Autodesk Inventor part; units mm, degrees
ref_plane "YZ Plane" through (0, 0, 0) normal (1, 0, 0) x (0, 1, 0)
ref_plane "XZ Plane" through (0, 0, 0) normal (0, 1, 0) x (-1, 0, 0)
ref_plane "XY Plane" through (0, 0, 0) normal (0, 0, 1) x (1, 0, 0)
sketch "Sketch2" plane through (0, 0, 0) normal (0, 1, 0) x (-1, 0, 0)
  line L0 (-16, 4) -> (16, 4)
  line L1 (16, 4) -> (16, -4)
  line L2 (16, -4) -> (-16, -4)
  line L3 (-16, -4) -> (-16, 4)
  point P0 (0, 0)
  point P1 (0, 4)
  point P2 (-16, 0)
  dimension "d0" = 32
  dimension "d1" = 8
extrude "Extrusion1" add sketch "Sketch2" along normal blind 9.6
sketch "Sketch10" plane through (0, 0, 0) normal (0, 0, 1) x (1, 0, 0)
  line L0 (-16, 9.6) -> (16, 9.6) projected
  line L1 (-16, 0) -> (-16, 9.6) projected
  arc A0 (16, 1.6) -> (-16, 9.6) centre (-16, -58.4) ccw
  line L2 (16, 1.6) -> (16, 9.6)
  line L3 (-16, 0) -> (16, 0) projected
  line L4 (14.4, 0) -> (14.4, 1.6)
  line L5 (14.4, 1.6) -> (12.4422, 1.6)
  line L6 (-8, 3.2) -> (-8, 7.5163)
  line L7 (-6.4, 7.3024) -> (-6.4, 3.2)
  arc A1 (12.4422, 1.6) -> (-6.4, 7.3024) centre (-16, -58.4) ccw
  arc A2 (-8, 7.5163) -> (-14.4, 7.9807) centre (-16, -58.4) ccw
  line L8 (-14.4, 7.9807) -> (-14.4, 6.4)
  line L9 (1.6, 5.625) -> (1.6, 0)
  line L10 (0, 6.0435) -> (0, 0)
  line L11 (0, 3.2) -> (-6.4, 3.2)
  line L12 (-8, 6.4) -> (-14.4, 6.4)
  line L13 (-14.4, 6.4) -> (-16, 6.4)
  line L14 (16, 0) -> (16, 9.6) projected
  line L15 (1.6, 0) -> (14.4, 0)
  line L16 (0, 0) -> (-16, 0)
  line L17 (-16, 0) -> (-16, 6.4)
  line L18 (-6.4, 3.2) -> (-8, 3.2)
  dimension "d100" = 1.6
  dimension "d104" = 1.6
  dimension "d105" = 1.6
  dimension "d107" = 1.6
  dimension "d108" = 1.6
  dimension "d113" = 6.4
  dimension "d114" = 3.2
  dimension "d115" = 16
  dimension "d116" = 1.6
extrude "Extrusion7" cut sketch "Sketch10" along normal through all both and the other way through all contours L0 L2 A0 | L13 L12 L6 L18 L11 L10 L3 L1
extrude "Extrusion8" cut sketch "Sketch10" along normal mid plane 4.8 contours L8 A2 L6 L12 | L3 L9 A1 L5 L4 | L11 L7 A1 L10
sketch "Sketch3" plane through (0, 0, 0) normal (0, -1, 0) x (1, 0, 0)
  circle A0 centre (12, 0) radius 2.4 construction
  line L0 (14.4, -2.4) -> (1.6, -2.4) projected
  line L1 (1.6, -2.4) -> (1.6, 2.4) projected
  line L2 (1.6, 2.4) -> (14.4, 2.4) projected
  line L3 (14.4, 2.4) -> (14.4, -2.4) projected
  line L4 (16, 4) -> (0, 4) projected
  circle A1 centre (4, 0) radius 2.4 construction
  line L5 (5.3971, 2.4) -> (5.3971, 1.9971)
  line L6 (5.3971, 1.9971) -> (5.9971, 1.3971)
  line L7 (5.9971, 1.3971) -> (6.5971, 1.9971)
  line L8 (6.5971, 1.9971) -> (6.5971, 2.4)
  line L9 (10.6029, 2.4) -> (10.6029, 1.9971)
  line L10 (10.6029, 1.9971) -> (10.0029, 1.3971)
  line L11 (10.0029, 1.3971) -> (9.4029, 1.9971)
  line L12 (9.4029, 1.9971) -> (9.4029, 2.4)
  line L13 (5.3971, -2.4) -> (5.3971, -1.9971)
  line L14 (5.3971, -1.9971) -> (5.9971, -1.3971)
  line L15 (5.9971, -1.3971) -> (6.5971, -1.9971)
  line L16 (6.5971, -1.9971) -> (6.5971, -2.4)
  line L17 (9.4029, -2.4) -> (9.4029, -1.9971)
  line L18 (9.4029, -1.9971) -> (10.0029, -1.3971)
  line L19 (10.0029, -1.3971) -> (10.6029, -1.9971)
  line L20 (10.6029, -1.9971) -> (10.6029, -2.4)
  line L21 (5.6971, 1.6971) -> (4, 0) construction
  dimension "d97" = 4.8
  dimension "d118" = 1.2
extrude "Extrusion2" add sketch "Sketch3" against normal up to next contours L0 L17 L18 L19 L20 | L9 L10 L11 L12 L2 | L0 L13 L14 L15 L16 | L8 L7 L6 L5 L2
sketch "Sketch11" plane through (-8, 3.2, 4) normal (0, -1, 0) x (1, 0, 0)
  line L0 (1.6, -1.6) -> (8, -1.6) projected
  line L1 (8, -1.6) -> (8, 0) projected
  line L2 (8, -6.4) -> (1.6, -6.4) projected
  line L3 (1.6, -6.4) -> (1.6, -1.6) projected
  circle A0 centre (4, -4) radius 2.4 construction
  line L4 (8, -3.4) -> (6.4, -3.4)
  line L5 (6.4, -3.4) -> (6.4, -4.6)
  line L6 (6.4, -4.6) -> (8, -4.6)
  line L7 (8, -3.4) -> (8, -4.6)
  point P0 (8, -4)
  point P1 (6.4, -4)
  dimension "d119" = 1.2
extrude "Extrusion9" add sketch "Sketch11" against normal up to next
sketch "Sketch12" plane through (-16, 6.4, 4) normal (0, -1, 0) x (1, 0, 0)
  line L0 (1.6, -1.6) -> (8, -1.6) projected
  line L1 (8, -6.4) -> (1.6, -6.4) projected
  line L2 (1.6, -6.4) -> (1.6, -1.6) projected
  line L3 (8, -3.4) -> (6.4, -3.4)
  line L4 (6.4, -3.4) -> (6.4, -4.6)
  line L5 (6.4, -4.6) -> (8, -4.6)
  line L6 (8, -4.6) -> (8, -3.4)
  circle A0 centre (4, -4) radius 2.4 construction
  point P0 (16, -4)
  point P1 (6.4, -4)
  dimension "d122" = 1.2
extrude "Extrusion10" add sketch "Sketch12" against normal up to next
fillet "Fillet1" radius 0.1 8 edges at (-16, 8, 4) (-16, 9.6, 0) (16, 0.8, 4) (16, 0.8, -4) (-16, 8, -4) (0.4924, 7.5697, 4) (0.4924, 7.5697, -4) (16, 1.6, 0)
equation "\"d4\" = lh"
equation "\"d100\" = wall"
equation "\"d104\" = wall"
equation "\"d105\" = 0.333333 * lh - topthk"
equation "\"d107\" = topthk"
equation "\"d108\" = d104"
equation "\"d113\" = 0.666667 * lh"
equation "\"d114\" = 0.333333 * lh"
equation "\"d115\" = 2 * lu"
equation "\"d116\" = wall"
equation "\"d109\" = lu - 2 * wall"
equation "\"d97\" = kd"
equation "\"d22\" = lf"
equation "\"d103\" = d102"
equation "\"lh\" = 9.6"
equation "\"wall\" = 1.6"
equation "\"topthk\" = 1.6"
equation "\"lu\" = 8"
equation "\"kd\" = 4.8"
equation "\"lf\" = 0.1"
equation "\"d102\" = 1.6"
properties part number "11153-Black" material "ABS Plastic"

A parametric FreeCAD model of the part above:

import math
import FreeCAD as App
import Part
import Sketcher


def edges_at(feature, points):
    """Names of the edges that pass closest to the given points."""
    edges = feature.Shape.Edges
    near = lambda p: min(range(len(edges)), key=lambda i: edges[i].distToShape(Part.Vertex(*p))[0])
    return sorted({f"Edge{near(p) + 1}" for p in points})

doc = App.newDocument("Part")
body = doc.addObject("PartDesign::Body", "Body")

sketch1 = body.newObject("Sketcher::SketchObject", "Sketch")
sketch1.AttachmentSupport = (doc.getObject("XZ_Plane"), [""])
sketch1.MapMode = "FlatFace"
sketch1.addGeometry(Part.LineSegment(App.Vector(-16, 4, 0), App.Vector(16, 4, 0)), False)
sketch1.addGeometry(Part.LineSegment(App.Vector(16, 4, 0), App.Vector(16, -4, 0)), False)
sketch1.addGeometry(Part.LineSegment(App.Vector(16, -4, 0), App.Vector(-16, -4, 0)), False)
sketch1.addGeometry(Part.LineSegment(App.Vector(-16, -4, 0), App.Vector(-16, 4, 0)), False)
sketch1.addConstraint(Sketcher.Constraint("Coincident", 0, 2, 1, 1))
sketch1.addConstraint(Sketcher.Constraint("Coincident", 1, 2, 2, 1))
sketch1.addConstraint(Sketcher.Constraint("Coincident", 2, 2, 3, 1))
sketch1.addConstraint(Sketcher.Constraint("Coincident", 3, 2, 0, 1))
sketch1.addConstraint(Sketcher.Constraint("Horizontal", 0))
sketch1.addConstraint(Sketcher.Constraint("Vertical", 1))
sketch1.addConstraint(Sketcher.Constraint("Horizontal", 2))
sketch1.addConstraint(Sketcher.Constraint("Vertical", 3))
sketch1.addConstraint(Sketcher.Constraint("Symmetric", 0, 2, 2, 2, -1, 1))
sketch1.addConstraint(Sketcher.Constraint("DistanceX", 0, 1, 0, 2, 32.0))
sketch1.addConstraint(Sketcher.Constraint("DistanceY", 1, 2, 1, 1, 8.0))
pad1 = body.newObject("PartDesign::Pad", "Pad")
pad1.Profile = sketch1
pad1.Length = 9.6
pad1.Reversed = True

sketch2 = body.newObject("Sketcher::SketchObject", "Sketch001")
sketch2.AttachmentSupport = (doc.getObject("XY_Plane"), [""])
sketch2.MapMode = "FlatFace"
sketch2.addGeometry(Part.LineSegment(App.Vector(16, 9.6, 0), App.Vector(-16, 9.6, 0)), False)
sketch2.addGeometry(Part.ArcOfCircle(Part.Circle(App.Vector(-16, -58.4, 0), App.Vector(0, 0, 1), 68), math.radians(61.927513), math.radians(90)), False)
sketch2.addGeometry(Part.LineSegment(App.Vector(16, 1.6, 0), App.Vector(16, 9.6, 0)), False)
sketch2.addGeometry(Part.LineSegment(App.Vector(-8, 6.4, 0), App.Vector(-16, 6.4, 0)), False)
sketch2.addGeometry(Part.LineSegment(App.Vector(-16, 6.4, 0), App.Vector(-16, 0, 0)), False)
sketch2.addGeometry(Part.LineSegment(App.Vector(-16, 0, 0), App.Vector(0, 0, 0)), False)
sketch2.addGeometry(Part.LineSegment(App.Vector(0, 0, 0), App.Vector(0, 3.2, 0)), False)
sketch2.addGeometry(Part.LineSegment(App.Vector(0, 3.2, 0), App.Vector(-8, 3.2, 0)), False)
sketch2.addGeometry(Part.LineSegment(App.Vector(-8, 3.2, 0), App.Vector(-8, 6.4, 0)), False)
sketch2.addConstraint(Sketcher.Constraint("Tangent", 0, 2, 1, 2))
sketch2.addConstraint(Sketcher.Constraint("Coincident", 1, 1, 2, 1))
sketch2.addConstraint(Sketcher.Constraint("Coincident", 2, 2, 0, 1))
sketch2.addConstraint(Sketcher.Constraint("Coincident", 3, 2, 4, 1))
sketch2.addConstraint(Sketcher.Constraint("Coincident", 4, 2, 5, 1))
sketch2.addConstraint(Sketcher.Constraint("Coincident", 5, 2, 6, 1))
sketch2.addConstraint(Sketcher.Constraint("Coincident", 6, 2, 7, 1))
sketch2.addConstraint(Sketcher.Constraint("Coincident", 7, 2, 8, 1))
sketch2.addConstraint(Sketcher.Constraint("Coincident", 8, 2, 3, 1))
sketch2.addConstraint(Sketcher.Constraint("Horizontal", 0))
sketch2.addConstraint(Sketcher.Constraint("Vertical", 2))
sketch2.addConstraint(Sketcher.Constraint("Horizontal", 3))
sketch2.addConstraint(Sketcher.Constraint("Vertical", 4))
sketch2.addConstraint(Sketcher.Constraint("Horizontal", 5))
sketch2.addConstraint(Sketcher.Constraint("Vertical", 6))
sketch2.addConstraint(Sketcher.Constraint("Horizontal", 7))
sketch2.addConstraint(Sketcher.Constraint("Vertical", 8))
sketch2.addConstraint(Sketcher.Constraint("Coincident", 5, 2, -1, 1))
sketch2.addConstraint(Sketcher.Constraint("Vertical", 0, 2, 3, 2))
sketch2.addConstraint(Sketcher.Constraint("Equal", 3, 7))
sketch2.addConstraint(Sketcher.Constraint("Equal", 7, 2))
sketch2.addConstraint(Sketcher.Constraint("Equal", 6, 8))
sketch2.addConstraint(Sketcher.Constraint("DistanceX", 5, 1, 5, 2, 16.0))
sketch2.addConstraint(Sketcher.Constraint("DistanceY", 4, 2, 4, 1, 6.4))
sketch2.addConstraint(Sketcher.Constraint("DistanceX", -1, 1, 1, 1, 16.0))
sketch2.addConstraint(Sketcher.Constraint("DistanceY", -1, 1, 1, 1, 1.6))
pocket1 = body.newObject("PartDesign::Pocket", "Pocket")
pocket1.Profile = sketch2
pocket1.Type = "ThroughAll"
pocket1.Midplane = True

sketch3 = body.newObject("Sketcher::SketchObject", "Sketch002")
sketch3.AttachmentSupport = (doc.getObject("XY_Plane"), [""])
sketch3.MapMode = "FlatFace"
sketch3.addGeometry(Part.LineSegment(App.Vector(-14.4, 7.9807, 0), App.Vector(-14.4, 6.4, 0)), False)
sketch3.addGeometry(Part.LineSegment(App.Vector(-14.4, 6.4, 0), App.Vector(-8, 6.4, 0)), False)
sketch3.addGeometry(Part.LineSegment(App.Vector(-8, 6.4, 0), App.Vector(-8, 7.5163, 0)), False)
sketch3.addGeometry(Part.ArcOfCircle(Part.Circle(App.Vector(-15.999604, -58.395914, 0), App.Vector(0, 0, 1), 66.395886), math.radians(83.079996), math.radians(88.619501)), False)
sketch3.addGeometry(Part.LineSegment(App.Vector(1.6, 0, 0), App.Vector(14.4, 0, 0)), False)
sketch3.addGeometry(Part.LineSegment(App.Vector(14.4, 0, 0), App.Vector(14.4, 1.6, 0)), False)
sketch3.addGeometry(Part.LineSegment(App.Vector(14.4, 1.6, 0), App.Vector(12.4422, 1.6, 0)), False)
sketch3.addGeometry(Part.ArcOfCircle(Part.Circle(App.Vector(-16.000815, -58.402112, 0), App.Vector(0, 0, 1), 66.402248), math.radians(64.637478), math.radians(74.629274)), False)
sketch3.addGeometry(Part.LineSegment(App.Vector(1.6, 5.625, 0), App.Vector(1.6, 0, 0)), False)
sketch3.addGeometry(Part.LineSegment(App.Vector(-6.4, 3.2, 0), App.Vector(0, 3.2, 0)), False)
sketch3.addGeometry(Part.LineSegment(App.Vector(0, 3.2, 0), App.Vector(0, 6.0435, 0)), False)
sketch3.addGeometry(Part.ArcOfCircle(Part.Circle(App.Vector(-16.000815, -58.402112, 0), App.Vector(0, 0, 1), 66.402248), math.radians(76.056329), math.radians(81.686712)), False)
sketch3.addGeometry(Part.LineSegment(App.Vector(-6.4, 7.3024, 0), App.Vector(-6.4, 3.2, 0)), False)
sketch3.addConstraint(Sketcher.Constraint("Coincident", 0, 2, 1, 1))
sketch3.addConstraint(Sketcher.Constraint("Coincident", 1, 2, 2, 1))
sketch3.addConstraint(Sketcher.Constraint("Coincident", 2, 2, 3, 1))
sketch3.addConstraint(Sketcher.Constraint("Coincident", 3, 2, 0, 1))
sketch3.addConstraint(Sketcher.Constraint("Coincident", 4, 2, 5, 1))
sketch3.addConstraint(Sketcher.Constraint("Coincident", 5, 2, 6, 1))
sketch3.addConstraint(Sketcher.Constraint("Coincident", 6, 2, 7, 1))
sketch3.addConstraint(Sketcher.Constraint("Coincident", 7, 2, 8, 1))
sketch3.addConstraint(Sketcher.Constraint("Coincident", 8, 2, 4, 1))
sketch3.addConstraint(Sketcher.Constraint("Coincident", 9, 2, 10, 1))
sketch3.addConstraint(Sketcher.Constraint("Coincident", 10, 2, 11, 1))
sketch3.addConstraint(Sketcher.Constraint("Coincident", 11, 2, 12, 1))
sketch3.addConstraint(Sketcher.Constraint("Coincident", 12, 2, 9, 1))
sketch3.addConstraint(Sketcher.Constraint("Vertical", 0))
sketch3.addConstraint(Sketcher.Constraint("Horizontal", 1))
sketch3.addConstraint(Sketcher.Constraint("Vertical", 2))
sketch3.addConstraint(Sketcher.Constraint("Horizontal", 4))
sketch3.addConstraint(Sketcher.Constraint("Vertical", 5))
sketch3.addConstraint(Sketcher.Constraint("Horizontal", 6))
sketch3.addConstraint(Sketcher.Constraint("Vertical", 8))
sketch3.addConstraint(Sketcher.Constraint("Horizontal", 9))
sketch3.addConstraint(Sketcher.Constraint("Vertical", 10))
sketch3.addConstraint(Sketcher.Constraint("Vertical", 12))
sketch3.addConstraint(Sketcher.Constraint("Coincident", 11, 3, 7, 3))
sketch3.addConstraint(Sketcher.Constraint("Equal", 7, 11))
sketch3.addConstraint(Sketcher.Constraint("PointOnObject", 4, 2, -1))
sketch3.addConstraint(Sketcher.Constraint("PointOnObject", 9, 2, -2))
sketch3.addConstraint(Sketcher.Constraint("Equal", 1, 9))
sketch3.addConstraint(Sketcher.Constraint("DistanceX", 1, 1, 1, 2, 6.4))
sketch3.addConstraint(Sketcher.Constraint("DistanceY", 5, 1, 5, 2, 1.6))
sketch3.addConstraint(Sketcher.Constraint("DistanceY", -1, 1, 0, 2, 6.4))
sketch3.addConstraint(Sketcher.Constraint("DistanceX", -1, 1, 7, 2, 1.6))
sketch3.addConstraint(Sketcher.Constraint("DistanceY", -1, 1, 9, 2, 3.2))
sketch3.addConstraint(Sketcher.Constraint("DistanceX", 2, 2, 11, 2, 1.6))
sketch3.addConstraint(Sketcher.Constraint("DistanceX", 4, 1, 4, 2, 12.8))
sketch3.addConstraint(Sketcher.Constraint("Radius", 3, 66.396))
sketch3.addConstraint(Sketcher.Constraint("DistanceX", 3, 3, -1, 1, 15.9996))
sketch3.addConstraint(Sketcher.Constraint("Radius", 7, 66.4022))
sketch3.addConstraint(Sketcher.Constraint("DistanceY", 8, 2, 8, 1, 5.625))
sketch3.addConstraint(Sketcher.Constraint("DistanceX", 6, 2, 6, 1, 1.9578))
sketch3.addConstraint(Sketcher.Constraint("DistanceY", 0, 2, 0, 1, 1.5807))
pocket2 = body.newObject("PartDesign::Pocket", "Pocket001")
pocket2.Profile = sketch3
pocket2.Length = 4.8
pocket2.Midplane = True

sketch4 = body.newObject("Sketcher::SketchObject", "Sketch003")
sketch4.AttachmentSupport = (doc.getObject("XZ_Plane"), [""])
sketch4.MapMode = "FlatFace"
sketch4.addGeometry(Part.LineSegment(App.Vector(9.4029, -2.4, 0), App.Vector(10.6029, -2.4, 0)), False)
sketch4.addGeometry(Part.LineSegment(App.Vector(10.6029, -2.4, 0), App.Vector(10.6029, -1.9971, 0)), False)
sketch4.addGeometry(Part.LineSegment(App.Vector(10.6029, -1.9971, 0), App.Vector(10.0029, -1.3971, 0)), False)
sketch4.addGeometry(Part.LineSegment(App.Vector(10.0029, -1.3971, 0), App.Vector(9.4029, -1.9971, 0)), False)
sketch4.addGeometry(Part.LineSegment(App.Vector(9.4029, -1.9971, 0), App.Vector(9.4029, -2.4, 0)), False)
sketch4.addGeometry(Part.LineSegment(App.Vector(10.6029, 1.9971, 0), App.Vector(10.6029, 2.4, 0)), False)
sketch4.addGeometry(Part.LineSegment(App.Vector(10.6029, 2.4, 0), App.Vector(9.4029, 2.4, 0)), False)
sketch4.addGeometry(Part.LineSegment(App.Vector(9.4029, 2.4, 0), App.Vector(9.4029, 1.9971, 0)), False)
sketch4.addGeometry(Part.LineSegment(App.Vector(9.4029, 1.9971, 0), App.Vector(10.0029, 1.3971, 0)), False)
sketch4.addGeometry(Part.LineSegment(App.Vector(10.0029, 1.3971, 0), App.Vector(10.6029, 1.9971, 0)), False)
sketch4.addGeometry(Part.LineSegment(App.Vector(5.3971, -2.4, 0), App.Vector(6.5971, -2.4, 0)), False)
sketch4.addGeometry(Part.LineSegment(App.Vector(6.5971, -2.4, 0), App.Vector(6.5971, -1.9971, 0)), False)
sketch4.addGeometry(Part.LineSegment(App.Vector(6.5971, -1.9971, 0), App.Vector(5.9971, -1.3971, 0)), False)
sketch4.addGeometry(Part.LineSegment(App.Vector(5.9971, -1.3971, 0), App.Vector(5.3971, -1.9971, 0)), False)
sketch4.addGeometry(Part.LineSegment(App.Vector(5.3971, -1.9971, 0), App.Vector(5.3971, -2.4, 0)), False)
sketch4.addGeometry(Part.LineSegment(App.Vector(6.5971, 1.9971, 0), App.Vector(6.5971, 2.4, 0)), False)
sketch4.addGeometry(Part.LineSegment(App.Vector(6.5971, 2.4, 0), App.Vector(5.3971, 2.4, 0)), False)
sketch4.addGeometry(Part.LineSegment(App.Vector(5.3971, 2.4, 0), App.Vector(5.3971, 1.9971, 0)), False)
sketch4.addGeometry(Part.LineSegment(App.Vector(5.3971, 1.9971, 0), App.Vector(5.9971, 1.3971, 0)), False)
sketch4.addGeometry(Part.LineSegment(App.Vector(5.9971, 1.3971, 0), App.Vector(6.5971, 1.9971, 0)), False)
sketch4.addConstraint(Sketcher.Constraint("Coincident", 0, 2, 1, 1))
sketch4.addConstraint(Sketcher.Constraint("Coincident", 1, 2, 2, 1))
sketch4.addConstraint(Sketcher.Constraint("Coincident", 2, 2, 3, 1))
sketch4.addConstraint(Sketcher.Constraint("Coincident", 3, 2, 4, 1))
sketch4.addConstraint(Sketcher.Constraint("Coincident", 4, 2, 0, 1))
sketch4.addConstraint(Sketcher.Constraint("Coincident", 5, 2, 6, 1))
sketch4.addConstraint(Sketcher.Constraint("Coincident", 6, 2, 7, 1))
sketch4.addConstraint(Sketcher.Constraint("Coincident", 7, 2, 8, 1))
sketch4.addConstraint(Sketcher.Constraint("Coincident", 8, 2, 9, 1))
sketch4.addConstraint(Sketcher.Constraint("Coincident", 9, 2, 5, 1))
sketch4.addConstraint(Sketcher.Constraint("Coincident", 10, 2, 11, 1))
sketch4.addConstraint(Sketcher.Constraint("Coincident", 11, 2, 12, 1))
sketch4.addConstraint(Sketcher.Constraint("Coincident", 12, 2, 13, 1))
sketch4.addConstraint(Sketcher.Constraint("Coincident", 13, 2, 14, 1))
sketch4.addConstraint(Sketcher.Constraint("Coincident", 14, 2, 10, 1))
sketch4.addConstraint(Sketcher.Constraint("Coincident", 15, 2, 16, 1))
sketch4.addConstraint(Sketcher.Constraint("Coincident", 16, 2, 17, 1))
sketch4.addConstraint(Sketcher.Constraint("Coincident", 17, 2, 18, 1))
sketch4.addConstraint(Sketcher.Constraint("Coincident", 18, 2, 19, 1))
sketch4.addConstraint(Sketcher.Constraint("Coincident", 19, 2, 15, 1))
sketch4.addConstraint(Sketcher.Constraint("Horizontal", 0))
sketch4.addConstraint(Sketcher.Constraint("Vertical", 1))
sketch4.addConstraint(Sketcher.Constraint("Vertical", 4))
sketch4.addConstraint(Sketcher.Constraint("Vertical", 5))
sketch4.addConstraint(Sketcher.Constraint("Horizontal", 6))
sketch4.addConstraint(Sketcher.Constraint("Vertical", 7))
sketch4.addConstraint(Sketcher.Constraint("Horizontal", 10))
sketch4.addConstraint(Sketcher.Constraint("Vertical", 11))
sketch4.addConstraint(Sketcher.Constraint("Vertical", 14))
sketch4.addConstraint(Sketcher.Constraint("Vertical", 15))
sketch4.addConstraint(Sketcher.Constraint("Horizontal", 16))
sketch4.addConstraint(Sketcher.Constraint("Vertical", 17))
sketch4.addConstraint(Sketcher.Constraint("Symmetric", 0, 2, 5, 2, -1))
sketch4.addConstraint(Sketcher.Constraint("Symmetric", 3, 2, 7, 2, -1))
sketch4.addConstraint(Sketcher.Constraint("Symmetric", 2, 2, 8, 2, -1))
sketch4.addConstraint(Sketcher.Constraint("Symmetric", 10, 2, 15, 2, -1))
sketch4.addConstraint(Sketcher.Constraint("Symmetric", 13, 2, 17, 2, -1))
sketch4.addConstraint(Sketcher.Constraint("Symmetric", 12, 2, 18, 2, -1))
sketch4.addConstraint(Sketcher.Constraint("Perpendicular", 2, 3))
sketch4.addConstraint(Sketcher.Constraint("Perpendicular", 3, 8))
sketch4.addConstraint(Sketcher.Constraint("Perpendicular", 8, 9))
sketch4.addConstraint(Sketcher.Constraint("Perpendicular", 9, 12))
sketch4.addConstraint(Sketcher.Constraint("Perpendicular", 12, 13))
sketch4.addConstraint(Sketcher.Constraint("Perpendicular", 18, 19))
sketch4.addConstraint(Sketcher.Constraint("Horizontal", 1, 2, 3, 2))
sketch4.addConstraint(Sketcher.Constraint("Horizontal", 4, 2, 10, 2))
sketch4.addConstraint(Sketcher.Constraint("Horizontal", 3, 2, 11, 2))
sketch4.addConstraint(Sketcher.Constraint("Horizontal", 2, 2, 12, 2))
sketch4.addConstraint(Sketcher.Constraint("Horizontal", 11, 2, 13, 2))
sketch4.addConstraint(Sketcher.Constraint("DistanceX", 0, 1, 0, 2, 1.2))
sketch4.addConstraint(Sketcher.Constraint("DistanceY", 0, 2, 5, 2, 4.8))
sketch4.addConstraint(Sketcher.Constraint("DistanceY", 1, 1, 1, 2, 0.403))
sketch4.addConstraint(Sketcher.Constraint("DistanceX", -1, 1, 0, 2, 10.603))
sketch4.addConstraint(Sketcher.Constraint("DistanceX", -1, 1, 10, 2, 6.597))
pad2 = body.newObject("PartDesign::Pad", "Pad001")
pad2.Profile = sketch4
pad2.Type = "UpToFirst"
pad2.Reversed = True

sketch5 = body.newObject("Sketcher::SketchObject", "Sketch004")
sketch5.AttachmentSupport = (doc.getObject("XZ_Plane"), [""])
sketch5.MapMode = "FlatFace"
sketch5.AttachmentOffset = App.Placement(App.Vector(0, 0, -3.2), App.Rotation())
sketch5.addGeometry(Part.LineSegment(App.Vector(0, -0.6, 0), App.Vector(0, 0.6, 0)), False)
sketch5.addGeometry(Part.LineSegment(App.Vector(0, 0.6, 0), App.Vector(-1.6, 0.6, 0)), False)
sketch5.addGeometry(Part.LineSegment(App.Vector(-1.6, 0.6, 0), App.Vector(-1.6, -0.6, 0)), False)
sketch5.addGeometry(Part.LineSegment(App.Vector(-1.6, -0.6, 0), App.Vector(0, -0.6, 0)), False)
sketch5.addConstraint(Sketcher.Constraint("Coincident", 0, 2, 1, 1))
sketch5.addConstraint(Sketcher.Constraint("Coincident", 1, 2, 2, 1))
sketch5.addConstraint(Sketcher.Constraint("Coincident", 2, 2, 3, 1))
sketch5.addConstraint(Sketcher.Constraint("Coincident", 3, 2, 0, 1))
sketch5.addConstraint(Sketcher.Constraint("Vertical", 0))
sketch5.addConstraint(Sketcher.Constraint("Horizontal", 1))
sketch5.addConstraint(Sketcher.Constraint("Vertical", 2))
sketch5.addConstraint(Sketcher.Constraint("Horizontal", 3))
sketch5.addConstraint(Sketcher.Constraint("Symmetric", 0, 2, 3, 2, -1, 1))
sketch5.addConstraint(Sketcher.Constraint("DistanceY", 0, 1, 0, 2, 1.2))
sketch5.addConstraint(Sketcher.Constraint("DistanceX", 1, 2, 1, 1, 1.6))
pad3 = body.newObject("PartDesign::Pad", "Pad002")
pad3.Profile = sketch5
pad3.Type = "UpToFirst"
pad3.Reversed = True

sketch6 = body.newObject("Sketcher::SketchObject", "Sketch005")
sketch6.AttachmentSupport = (doc.getObject("XZ_Plane"), [""])
sketch6.MapMode = "FlatFace"
sketch6.AttachmentOffset = App.Placement(App.Vector(0, 0, -6.4), App.Rotation())
sketch6.addGeometry(Part.LineSegment(App.Vector(-8, -0.6, 0), App.Vector(-8, 0.6, 0)), False)
sketch6.addGeometry(Part.LineSegment(App.Vector(-8, 0.6, 0), App.Vector(-9.6, 0.6, 0)), False)
sketch6.addGeometry(Part.LineSegment(App.Vector(-9.6, 0.6, 0), App.Vector(-9.6, -0.6, 0)), False)
sketch6.addGeometry(Part.LineSegment(App.Vector(-9.6, -0.6, 0), App.Vector(-8, -0.6, 0)), False)
sketch6.addConstraint(Sketcher.Constraint("Coincident", 0, 2, 1, 1))
sketch6.addConstraint(Sketcher.Constraint("Coincident", 1, 2, 2, 1))
sketch6.addConstraint(Sketcher.Constraint("Coincident", 2, 2, 3, 1))
sketch6.addConstraint(Sketcher.Constraint("Coincident", 3, 2, 0, 1))
sketch6.addConstraint(Sketcher.Constraint("Vertical", 0))
sketch6.addConstraint(Sketcher.Constraint("Horizontal", 1))
sketch6.addConstraint(Sketcher.Constraint("Vertical", 2))
sketch6.addConstraint(Sketcher.Constraint("Horizontal", 3))
sketch6.addConstraint(Sketcher.Constraint("DistanceY", 0, 1, 0, 2, 1.2))
sketch6.addConstraint(Sketcher.Constraint("DistanceX", 1, 2, 1, 1, 1.6))
sketch6.addConstraint(Sketcher.Constraint("DistanceX", 0, 2, -1, 1, 8.0))
sketch6.addConstraint(Sketcher.Constraint("DistanceY", -1, 1, 0, 2, 0.6))
pad4 = body.newObject("PartDesign::Pad", "Pad003")
pad4.Profile = sketch6
pad4.Type = "UpToFirst"
pad4.Reversed = True
doc.recompute()

fillet = body.newObject("PartDesign::Fillet", "Fillet")
fillet.Base = (pad4, edges_at(pad4, [
    (-16, 8, 4),
    (-16, 9.6, 0),
    (16, 0.8, 4),
    (16, 0.8, -4),
    (-16, 8, -4),
    (0.492, 7.57, 4),
    (0.492, 7.57, -4),
    (16, 1.6, 0),
]))
fillet.Radius = 0.1

doc.recompute()
